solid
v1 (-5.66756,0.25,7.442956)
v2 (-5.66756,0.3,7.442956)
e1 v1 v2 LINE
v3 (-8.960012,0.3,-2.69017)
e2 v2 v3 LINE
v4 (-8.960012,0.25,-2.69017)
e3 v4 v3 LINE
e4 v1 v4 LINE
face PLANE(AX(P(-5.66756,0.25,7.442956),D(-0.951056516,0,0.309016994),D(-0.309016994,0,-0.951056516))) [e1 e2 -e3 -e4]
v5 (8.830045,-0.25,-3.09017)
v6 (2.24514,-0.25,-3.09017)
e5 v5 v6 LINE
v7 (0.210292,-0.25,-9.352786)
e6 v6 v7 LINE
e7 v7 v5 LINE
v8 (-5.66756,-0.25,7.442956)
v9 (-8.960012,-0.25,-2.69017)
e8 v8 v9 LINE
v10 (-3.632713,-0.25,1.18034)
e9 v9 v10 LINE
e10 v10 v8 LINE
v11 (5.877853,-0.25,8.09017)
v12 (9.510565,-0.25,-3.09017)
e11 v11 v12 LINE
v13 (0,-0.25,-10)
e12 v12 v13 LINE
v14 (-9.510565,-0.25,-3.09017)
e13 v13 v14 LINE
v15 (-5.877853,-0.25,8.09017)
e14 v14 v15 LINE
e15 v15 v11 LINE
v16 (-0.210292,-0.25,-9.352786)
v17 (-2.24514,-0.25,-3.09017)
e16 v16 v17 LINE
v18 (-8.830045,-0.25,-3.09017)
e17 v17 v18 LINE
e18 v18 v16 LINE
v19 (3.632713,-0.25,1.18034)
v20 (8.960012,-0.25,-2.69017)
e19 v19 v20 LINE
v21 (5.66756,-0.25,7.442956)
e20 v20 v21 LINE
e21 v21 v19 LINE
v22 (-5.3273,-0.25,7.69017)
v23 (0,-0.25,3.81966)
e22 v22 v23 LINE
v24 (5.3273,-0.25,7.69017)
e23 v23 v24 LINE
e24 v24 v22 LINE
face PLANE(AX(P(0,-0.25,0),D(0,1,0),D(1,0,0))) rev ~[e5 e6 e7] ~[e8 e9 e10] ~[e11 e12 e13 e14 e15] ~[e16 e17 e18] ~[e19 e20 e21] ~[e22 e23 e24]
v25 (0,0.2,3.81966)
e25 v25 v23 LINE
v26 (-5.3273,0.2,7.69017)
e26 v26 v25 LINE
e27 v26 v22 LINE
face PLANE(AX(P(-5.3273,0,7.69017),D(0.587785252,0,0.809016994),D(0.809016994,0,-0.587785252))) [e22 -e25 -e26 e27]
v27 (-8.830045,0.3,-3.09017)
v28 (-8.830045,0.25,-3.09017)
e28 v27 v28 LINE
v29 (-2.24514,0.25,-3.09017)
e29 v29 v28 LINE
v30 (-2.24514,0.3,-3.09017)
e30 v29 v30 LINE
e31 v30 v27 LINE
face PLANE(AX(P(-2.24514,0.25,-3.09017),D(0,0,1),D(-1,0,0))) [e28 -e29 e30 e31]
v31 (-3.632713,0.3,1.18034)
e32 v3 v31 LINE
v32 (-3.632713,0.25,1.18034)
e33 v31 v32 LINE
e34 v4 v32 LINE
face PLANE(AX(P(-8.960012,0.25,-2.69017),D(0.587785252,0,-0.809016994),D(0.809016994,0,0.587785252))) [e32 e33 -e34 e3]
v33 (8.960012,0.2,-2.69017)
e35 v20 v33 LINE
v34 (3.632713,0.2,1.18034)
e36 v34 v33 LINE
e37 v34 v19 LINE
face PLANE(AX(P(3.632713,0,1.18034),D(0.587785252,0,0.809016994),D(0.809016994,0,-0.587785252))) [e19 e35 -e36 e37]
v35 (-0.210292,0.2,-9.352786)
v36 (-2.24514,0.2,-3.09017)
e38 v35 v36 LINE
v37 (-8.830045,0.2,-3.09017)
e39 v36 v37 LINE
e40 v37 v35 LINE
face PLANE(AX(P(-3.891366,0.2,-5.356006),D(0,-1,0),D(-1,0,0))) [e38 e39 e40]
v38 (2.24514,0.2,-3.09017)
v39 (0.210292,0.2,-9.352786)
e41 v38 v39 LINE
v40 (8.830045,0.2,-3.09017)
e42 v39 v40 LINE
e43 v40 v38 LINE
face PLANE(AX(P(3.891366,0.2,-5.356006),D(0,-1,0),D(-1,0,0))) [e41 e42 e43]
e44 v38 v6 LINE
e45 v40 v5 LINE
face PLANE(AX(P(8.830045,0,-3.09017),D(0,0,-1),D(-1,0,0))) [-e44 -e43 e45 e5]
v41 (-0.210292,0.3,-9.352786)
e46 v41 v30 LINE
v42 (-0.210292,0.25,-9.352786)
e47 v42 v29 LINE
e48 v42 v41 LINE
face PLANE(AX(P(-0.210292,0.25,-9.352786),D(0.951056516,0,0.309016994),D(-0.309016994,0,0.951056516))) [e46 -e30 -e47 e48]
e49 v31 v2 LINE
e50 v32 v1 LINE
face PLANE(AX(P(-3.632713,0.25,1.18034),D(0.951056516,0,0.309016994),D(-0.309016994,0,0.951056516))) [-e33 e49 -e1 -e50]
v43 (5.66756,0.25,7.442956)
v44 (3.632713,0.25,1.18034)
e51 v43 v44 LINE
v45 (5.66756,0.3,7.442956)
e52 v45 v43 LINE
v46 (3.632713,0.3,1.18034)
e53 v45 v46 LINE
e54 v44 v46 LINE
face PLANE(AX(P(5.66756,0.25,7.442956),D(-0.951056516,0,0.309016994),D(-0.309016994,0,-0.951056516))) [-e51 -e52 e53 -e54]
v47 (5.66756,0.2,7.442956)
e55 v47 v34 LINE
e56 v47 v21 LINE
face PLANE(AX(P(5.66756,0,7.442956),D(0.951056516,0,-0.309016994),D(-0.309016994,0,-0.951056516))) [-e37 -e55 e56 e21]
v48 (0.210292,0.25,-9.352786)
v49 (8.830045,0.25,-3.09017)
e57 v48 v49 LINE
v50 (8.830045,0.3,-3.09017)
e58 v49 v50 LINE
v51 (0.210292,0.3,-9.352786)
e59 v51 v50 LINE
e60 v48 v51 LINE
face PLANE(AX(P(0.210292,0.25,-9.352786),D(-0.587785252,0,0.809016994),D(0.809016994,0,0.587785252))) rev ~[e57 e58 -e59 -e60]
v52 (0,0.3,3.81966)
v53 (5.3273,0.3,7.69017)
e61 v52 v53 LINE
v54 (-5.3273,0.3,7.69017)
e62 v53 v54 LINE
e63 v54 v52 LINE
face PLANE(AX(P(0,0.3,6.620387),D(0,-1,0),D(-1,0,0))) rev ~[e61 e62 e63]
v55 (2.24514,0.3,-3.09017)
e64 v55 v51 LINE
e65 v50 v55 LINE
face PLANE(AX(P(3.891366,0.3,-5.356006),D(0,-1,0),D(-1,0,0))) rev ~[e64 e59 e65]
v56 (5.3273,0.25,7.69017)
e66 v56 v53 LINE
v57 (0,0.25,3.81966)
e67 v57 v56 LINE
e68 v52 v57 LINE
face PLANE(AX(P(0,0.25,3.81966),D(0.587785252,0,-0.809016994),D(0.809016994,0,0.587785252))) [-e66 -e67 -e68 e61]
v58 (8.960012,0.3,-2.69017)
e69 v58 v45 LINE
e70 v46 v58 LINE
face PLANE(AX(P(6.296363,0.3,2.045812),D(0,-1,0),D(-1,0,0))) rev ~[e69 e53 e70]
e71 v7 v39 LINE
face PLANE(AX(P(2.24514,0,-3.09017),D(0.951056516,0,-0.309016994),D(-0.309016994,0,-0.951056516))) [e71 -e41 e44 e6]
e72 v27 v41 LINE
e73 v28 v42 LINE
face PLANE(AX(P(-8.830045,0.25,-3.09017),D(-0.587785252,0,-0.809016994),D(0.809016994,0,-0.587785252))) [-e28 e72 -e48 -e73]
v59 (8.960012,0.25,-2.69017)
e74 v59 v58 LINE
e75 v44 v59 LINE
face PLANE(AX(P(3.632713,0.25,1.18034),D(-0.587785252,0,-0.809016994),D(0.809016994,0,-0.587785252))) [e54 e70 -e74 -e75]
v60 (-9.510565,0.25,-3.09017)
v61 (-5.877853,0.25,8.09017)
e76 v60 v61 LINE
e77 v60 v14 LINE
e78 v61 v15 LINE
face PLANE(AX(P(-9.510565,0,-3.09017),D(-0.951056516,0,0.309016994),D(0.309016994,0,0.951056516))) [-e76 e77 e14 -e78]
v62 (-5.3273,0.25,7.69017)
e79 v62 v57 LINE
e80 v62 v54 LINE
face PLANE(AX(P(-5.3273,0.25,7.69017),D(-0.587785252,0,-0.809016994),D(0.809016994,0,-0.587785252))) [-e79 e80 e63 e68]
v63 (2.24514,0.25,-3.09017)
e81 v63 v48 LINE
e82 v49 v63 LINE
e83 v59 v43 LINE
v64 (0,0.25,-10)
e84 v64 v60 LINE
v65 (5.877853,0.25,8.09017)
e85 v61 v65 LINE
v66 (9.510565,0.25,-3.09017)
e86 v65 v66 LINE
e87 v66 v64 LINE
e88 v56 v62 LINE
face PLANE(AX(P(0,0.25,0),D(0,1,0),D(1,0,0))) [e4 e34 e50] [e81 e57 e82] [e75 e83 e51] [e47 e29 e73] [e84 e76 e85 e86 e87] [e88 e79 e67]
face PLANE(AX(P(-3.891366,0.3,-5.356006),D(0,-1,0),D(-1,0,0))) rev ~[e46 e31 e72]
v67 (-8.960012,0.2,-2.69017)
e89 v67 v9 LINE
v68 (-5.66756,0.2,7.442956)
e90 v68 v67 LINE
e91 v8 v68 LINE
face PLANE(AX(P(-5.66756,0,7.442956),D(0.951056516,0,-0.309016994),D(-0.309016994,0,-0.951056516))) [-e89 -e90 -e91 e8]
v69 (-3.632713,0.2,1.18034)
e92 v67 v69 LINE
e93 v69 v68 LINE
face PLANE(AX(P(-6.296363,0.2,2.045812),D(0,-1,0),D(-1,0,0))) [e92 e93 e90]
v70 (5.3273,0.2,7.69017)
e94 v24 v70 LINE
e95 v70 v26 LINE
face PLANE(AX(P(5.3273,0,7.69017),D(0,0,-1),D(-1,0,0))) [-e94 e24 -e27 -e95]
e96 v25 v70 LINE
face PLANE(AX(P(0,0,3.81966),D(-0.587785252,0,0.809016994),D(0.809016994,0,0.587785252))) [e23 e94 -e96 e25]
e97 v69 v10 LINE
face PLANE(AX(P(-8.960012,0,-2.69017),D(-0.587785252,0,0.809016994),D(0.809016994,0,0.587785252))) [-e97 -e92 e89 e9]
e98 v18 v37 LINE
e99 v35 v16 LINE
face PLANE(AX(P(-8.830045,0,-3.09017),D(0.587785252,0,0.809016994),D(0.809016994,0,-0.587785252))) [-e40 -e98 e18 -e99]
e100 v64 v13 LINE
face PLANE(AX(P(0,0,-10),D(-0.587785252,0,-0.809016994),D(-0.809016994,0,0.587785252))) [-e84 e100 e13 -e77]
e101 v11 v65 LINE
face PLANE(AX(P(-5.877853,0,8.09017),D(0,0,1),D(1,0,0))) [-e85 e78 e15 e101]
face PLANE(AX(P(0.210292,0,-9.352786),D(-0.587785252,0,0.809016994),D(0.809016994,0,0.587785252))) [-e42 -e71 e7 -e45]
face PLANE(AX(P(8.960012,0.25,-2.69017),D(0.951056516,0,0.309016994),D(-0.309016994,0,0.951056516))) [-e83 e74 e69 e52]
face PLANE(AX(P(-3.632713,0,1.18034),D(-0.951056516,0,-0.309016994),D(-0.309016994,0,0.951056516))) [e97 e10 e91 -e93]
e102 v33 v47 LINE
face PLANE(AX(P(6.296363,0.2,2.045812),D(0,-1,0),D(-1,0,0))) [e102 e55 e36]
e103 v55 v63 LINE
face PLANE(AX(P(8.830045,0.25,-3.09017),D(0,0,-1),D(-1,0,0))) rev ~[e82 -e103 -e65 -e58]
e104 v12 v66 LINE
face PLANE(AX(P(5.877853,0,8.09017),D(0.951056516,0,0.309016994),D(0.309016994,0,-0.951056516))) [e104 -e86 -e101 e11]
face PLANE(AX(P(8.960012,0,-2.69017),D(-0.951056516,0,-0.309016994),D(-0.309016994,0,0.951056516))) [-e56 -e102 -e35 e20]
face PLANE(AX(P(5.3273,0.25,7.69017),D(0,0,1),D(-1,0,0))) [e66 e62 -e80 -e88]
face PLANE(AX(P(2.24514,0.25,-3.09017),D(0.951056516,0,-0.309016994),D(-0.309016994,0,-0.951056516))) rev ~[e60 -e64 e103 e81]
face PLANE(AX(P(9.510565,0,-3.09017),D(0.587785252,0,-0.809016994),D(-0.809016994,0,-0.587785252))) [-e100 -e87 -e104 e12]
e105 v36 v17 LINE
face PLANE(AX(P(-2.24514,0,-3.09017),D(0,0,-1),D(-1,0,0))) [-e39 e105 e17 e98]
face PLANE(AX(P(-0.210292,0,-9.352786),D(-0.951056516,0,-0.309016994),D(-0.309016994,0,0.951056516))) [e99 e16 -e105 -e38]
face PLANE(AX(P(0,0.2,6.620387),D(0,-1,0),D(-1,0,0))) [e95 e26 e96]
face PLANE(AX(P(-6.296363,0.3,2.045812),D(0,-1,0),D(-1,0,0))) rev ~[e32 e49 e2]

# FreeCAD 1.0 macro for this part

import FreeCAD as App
import Part
import Sketcher


def add_polygon(sketch, points):
    """Adds a closed chain of lines whose ends are joined by coincident constraints."""
    first, n = sketch.GeometryCount, len(points)
    for a, b in zip(points, points[1:] + points[:1]):
        sketch.addGeometry(Part.LineSegment(App.Vector(*a, 0), App.Vector(*b, 0)), False)
    for i in range(n):
        sketch.addConstraint(Sketcher.Constraint("Coincident", first + i, 2, first + (i + 1) % n, 1))

doc = App.newDocument("Part")
body = doc.addObject("PartDesign::Body", "Body")

sketch1 = doc.addObject("Sketcher::SketchObject", "Sketch")
body.addObject(sketch1)
sketch1.AttachmentSupport = (doc.XZ_Plane, [""])
sketch1.MapMode = "FlatFace"
add_polygon(sketch1, [(-5.877853, 8.09017), (5.877853, 8.09017), (9.510565, -3.09017), (0, -10), (-9.510565, -3.09017)])
add_polygon(sketch1, [(-3.632713, 1.18034), (-5.66756, 7.442956), (-8.960012, -2.69017)])
add_polygon(sketch1, [(0, 3.81966), (5.3273, 7.69017), (-5.3273, 7.69017)])
add_polygon(sketch1, [(3.632713, 1.18034), (8.960012, -2.69017), (5.66756, 7.442956)])
add_polygon(sketch1, [(-2.24514, -3.09017), (-8.830045, -3.09017), (-0.210292, -9.352786)])
add_polygon(sketch1, [(2.24514, -3.09017), (0.210292, -9.352786), (8.830045, -3.09017)])
sketch1.addConstraint([
    Sketcher.Constraint("Horizontal", 0),
    Sketcher.Constraint("Horizontal", 9),
    Sketcher.Constraint("Horizontal", 14),
    Sketcher.Constraint("Horizontal", 19),
    Sketcher.Constraint("Symmetric", 1, 2, 3, 2, -2),
    Sketcher.Constraint("Symmetric", 6, 2, 11, 2, -2),
    Sketcher.Constraint("Symmetric", 5, 2, 12, 2, -2),
    Sketcher.Constraint("Symmetric", 7, 2, 13, 2, -2),
    Sketcher.Constraint("Symmetric", 15, 2, 17, 2, -2),
    Sketcher.Constraint("Symmetric", 14, 2, 18, 2, -2),
    Sketcher.Constraint("PointOnObject", 2, 2, -2),
    Sketcher.Constraint("PointOnObject", 10, 2, -2),
    Sketcher.Constraint("Parallel", 1, 5),
    Sketcher.Constraint("Parallel", 4, 6),
    Sketcher.Constraint("Parallel", 2, 7),
    Sketcher.Constraint("Parallel", 7, 8),
    Sketcher.Constraint("Parallel", 3, 10),
    Sketcher.Constraint("Parallel", 5, 12),
    Sketcher.Constraint("Parallel", 11, 15),
    Sketcher.Constraint("Parallel", 12, 16),
    Sketcher.Constraint("Parallel", 13, 17),
    Sketcher.Constraint("Horizontal", 3, 2, 14, 2),
    Sketcher.Constraint("Equal", 1, 2),
    Sketcher.Constraint("Equal", 5, 7),
    Sketcher.Constraint("Equal", 7, 8),
    Sketcher.Constraint("Equal", 12, 15),
    Sketcher.Constraint("Equal", 13, 16),
    Sketcher.Constraint("DistanceY", 2, 2, -1, 1, 10.0),
    Sketcher.Constraint("DistanceY", 3, 2, 6, 2, 0.4),
    Sketcher.Constraint("DistanceY", 8, 2, 0, 2, 0.4),
    Sketcher.Constraint("DistanceX", 9, 2, 9, 1, 10.6546),
    Sketcher.Constraint("DistanceX", 0, 1, 0, 2, 11.755705),
    Sketcher.Constraint("DistanceX", 5, 2, -1, 1, 5.66756),
    Sketcher.Constraint("DistanceX", 16, 2, -1, 1, 2.24514),
])
pad1 = doc.addObject("PartDesign::Pad", "Pad")
body.addObject(pad1)
pad1.Profile = sketch1
pad1.Length = 0.5
pad1.Midplane = True

sketch2 = doc.addObject("Sketcher::SketchObject", "Sketch001")
body.addObject(sketch2)
sketch2.AttachmentSupport = (doc.XZ_Plane, [""])
sketch2.MapMode = "FlatFace"
sketch2.AttachmentOffset = App.Placement(App.Vector(0, 0, -0.25), App.Rotation())
add_polygon(sketch2, [(-8.830045, -3.09017), (-2.24514, -3.09017), (-0.210292, -9.352786)])
add_polygon(sketch2, [(-3.632713, 1.18034), (-8.960012, -2.69017), (-5.66756, 7.442956)])
add_polygon(sketch2, [(0, 3.81966), (-5.3273, 7.69017), (5.3273, 7.69017)])
add_polygon(sketch2, [(5.66756, 7.442956), (8.960012, -2.69017), (3.632713, 1.18034)])
add_polygon(sketch2, [(2.24514, -3.09017), (8.830045, -3.09017), (0.210292, -9.352786)])
sketch2.addConstraint([
    Sketcher.Constraint("Horizontal", 0),
    Sketcher.Constraint("Horizontal", 7),
    Sketcher.Constraint("Horizontal", 12),
    Sketcher.Constraint("Symmetric", 3, 2, 9, 2, -2),
    Sketcher.Constraint("Symmetric", 5, 2, 10, 2, -2),
    Sketcher.Constraint("Symmetric", 4, 2, 11, 2, -2),
    Sketcher.Constraint("Symmetric", 2, 2, 12, 2, -2),
    Sketcher.Constraint("Symmetric", 1, 2, 13, 2, -2),
    Sketcher.Constraint("PointOnObject", 8, 2, -2),
    Sketcher.Constraint("Parallel", 1, 5),
    Sketcher.Constraint("Parallel", 2, 6),
    Sketcher.Constraint("Parallel", 3, 8),
    Sketcher.Constraint("Parallel", 5, 9),
    Sketcher.Constraint("Parallel", 6, 10),
    Sketcher.Constraint("Parallel", 11, 14),
    Sketcher.Constraint("Equal", 1, 3),
    Sketcher.Constraint("Equal", 2, 4),
    Sketcher.Constraint("Equal", 3, 5),
    Sketcher.Constraint("Equal", 5, 6),
    Sketcher.Constraint("DistanceY", 2, 2, 3, 2, 0.4),
    Sketcher.Constraint("DistanceX", 7, 1, 7, 2, 10.6546),
    Sketcher.Constraint("DistanceX", 0, 2, -1, 1, 2.24514),
    Sketcher.Constraint("DistanceY", 0, 2, -1, 1, 3.09017),
    Sketcher.Constraint("DistanceX", 4, 2, -1, 1, 5.66756),
    Sketcher.Constraint("DistanceY", -1, 1, 6, 2, 7.69017),
])
pad2 = doc.addObject("PartDesign::Pad", "Pad001")
body.addObject(pad2)
pad2.Profile = sketch2
pad2.Length = 0.1
pad2.Midplane = True

doc.recompute()
